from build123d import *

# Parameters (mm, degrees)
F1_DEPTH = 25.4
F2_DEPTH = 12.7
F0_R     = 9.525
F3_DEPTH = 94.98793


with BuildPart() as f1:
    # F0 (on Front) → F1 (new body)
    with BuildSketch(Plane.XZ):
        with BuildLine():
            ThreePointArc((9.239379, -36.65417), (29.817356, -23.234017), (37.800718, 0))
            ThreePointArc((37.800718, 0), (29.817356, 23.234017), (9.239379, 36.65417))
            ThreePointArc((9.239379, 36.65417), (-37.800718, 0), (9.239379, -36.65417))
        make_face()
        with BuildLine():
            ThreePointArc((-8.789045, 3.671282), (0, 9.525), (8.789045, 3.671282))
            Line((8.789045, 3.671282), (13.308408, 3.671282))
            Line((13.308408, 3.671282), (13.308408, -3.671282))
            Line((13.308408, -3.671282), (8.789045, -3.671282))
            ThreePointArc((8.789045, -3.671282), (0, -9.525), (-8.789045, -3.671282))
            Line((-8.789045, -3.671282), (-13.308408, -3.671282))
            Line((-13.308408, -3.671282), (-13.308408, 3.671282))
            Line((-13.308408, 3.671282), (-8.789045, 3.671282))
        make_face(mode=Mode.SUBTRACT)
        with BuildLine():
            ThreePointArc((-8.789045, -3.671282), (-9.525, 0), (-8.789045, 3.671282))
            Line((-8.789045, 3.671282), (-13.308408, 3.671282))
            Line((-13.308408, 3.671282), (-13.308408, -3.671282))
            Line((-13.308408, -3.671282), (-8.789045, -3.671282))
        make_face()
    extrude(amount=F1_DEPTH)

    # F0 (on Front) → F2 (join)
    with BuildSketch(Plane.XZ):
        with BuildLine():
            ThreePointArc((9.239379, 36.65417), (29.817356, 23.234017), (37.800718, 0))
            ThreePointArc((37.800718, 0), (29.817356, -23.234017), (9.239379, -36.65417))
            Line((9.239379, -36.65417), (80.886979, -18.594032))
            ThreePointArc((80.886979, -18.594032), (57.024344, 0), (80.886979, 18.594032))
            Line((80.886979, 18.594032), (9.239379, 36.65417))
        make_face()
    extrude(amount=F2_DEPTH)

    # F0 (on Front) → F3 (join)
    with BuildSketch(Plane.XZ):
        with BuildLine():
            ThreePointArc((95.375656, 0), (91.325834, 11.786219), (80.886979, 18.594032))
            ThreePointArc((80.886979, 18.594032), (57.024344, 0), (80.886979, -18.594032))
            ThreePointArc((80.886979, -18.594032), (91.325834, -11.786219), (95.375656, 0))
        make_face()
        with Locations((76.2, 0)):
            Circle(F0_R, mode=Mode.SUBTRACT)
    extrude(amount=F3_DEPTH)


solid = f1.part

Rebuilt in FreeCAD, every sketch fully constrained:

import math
import FreeCAD as App
import Part
import Sketcher
Q = App.Units.Quantity

doc = App.newDocument("Part")
body = doc.addObject("PartDesign::Body", "Body")

# Sketch on XZ plane
sketch1 = body.newObject("Sketcher::SketchObject", "Sketch")
sketch1.AttachmentSupport = (doc.getObject("XZ_Plane"), [""])
sketch1.MapMode = "FlatFace"
sketch1.addGeometry(Part.ArcOfCircle(Part.Circle(App.Vector(0, 0, 0), App.Vector(0, 0, 1), 37.8), math.radians(-76), math.radians(0)), False)
sketch1.addGeometry(Part.ArcOfCircle(Part.Circle(App.Vector(0, 0, 0), App.Vector(0, 0, 1), 37.8), math.radians(0), math.radians(76)), False)
sketch1.addGeometry(Part.ArcOfCircle(Part.Circle(App.Vector(0, 0, 0), App.Vector(0, 0, 1), 37.8), math.radians(76), math.radians(284)), False)
sketch1.addGeometry(Part.ArcOfCircle(Part.Circle(App.Vector(0, 0, 0), App.Vector(0, 0, 1), 9.5), math.radians(-157), math.radians(-23)), False)
sketch1.addGeometry(Part.ArcOfCircle(Part.Circle(App.Vector(0, 0, 0), App.Vector(0, 0, 1), 9.5), math.radians(157), math.radians(203)), False)
sketch1.addGeometry(Part.ArcOfCircle(Part.Circle(App.Vector(0, 0, 0), App.Vector(0, 0, 1), 9.5), math.radians(23), math.radians(157)), False)
sketch1.addGeometry(Part.LineSegment(App.Vector(8.8, 3.7, 0), App.Vector(13.3, 3.7, 0)), False)
sketch1.addGeometry(Part.LineSegment(App.Vector(13.3, 3.7, 0), App.Vector(13.3, -3.7, 0)), False)
sketch1.addGeometry(Part.LineSegment(App.Vector(13.3, -3.7, 0), App.Vector(8.8, -3.7, 0)), False)
sketch1.addConstraint(Sketcher.Constraint("Tangent", 0, 2, 1, 1))
sketch1.addConstraint(Sketcher.Constraint("Tangent", 1, 2, 2, 1))
sketch1.addConstraint(Sketcher.Constraint("Tangent", 2, 2, 0, 1))
sketch1.addConstraint(Sketcher.Constraint("Tangent", 3, 1, 4, 2))
sketch1.addConstraint(Sketcher.Constraint("Tangent", 4, 1, 5, 2))
sketch1.addConstraint(Sketcher.Constraint("Coincident", 5, 1, 6, 1))
sketch1.addConstraint(Sketcher.Constraint("Coincident", 6, 2, 7, 1))
sketch1.addConstraint(Sketcher.Constraint("Coincident", 7, 2, 8, 1))
sketch1.addConstraint(Sketcher.Constraint("Coincident", 8, 2, 3, 2))
sketch1.addConstraint(Sketcher.Constraint("Horizontal", 6))
sketch1.addConstraint(Sketcher.Constraint("Vertical", 7))
sketch1.addConstraint(Sketcher.Constraint("Horizontal", 8))
sketch1.addConstraint(Sketcher.Constraint("Coincident", 0, 3, -1, 1))
sketch1.addConstraint(Sketcher.Constraint("Coincident", 3, 3, -1, 1))
sketch1.addConstraint(Sketcher.Constraint("Coincident", 5, 3, -1, 1))
sketch1.addConstraint(Sketcher.Constraint("PointOnObject", 0, 2, -1))
sketch1.addConstraint(Sketcher.Constraint("Horizontal", 4, 1, 5, 1))
sketch1.addConstraint(Sketcher.Constraint("Horizontal", 3, 1, 7, 2))
sketch1.addConstraint(Sketcher.Constraint("Vertical", 1, 2, 2, 2))
sketch1.addConstraint(Sketcher.Constraint("Vertical", 3, 1, 4, 1))
sketch1.addConstraint(Sketcher.Constraint("Radius", 3, Q("0.375 in")))
sketch1.addConstraint(Sketcher.Constraint("Radius", 0, Q("37.800719 mm")))
sketch1.addConstraint(Sketcher.Constraint("DistanceX", 6, 1, 6, 2, Q("4.519363 mm")))
sketch1.addConstraint(Sketcher.Constraint("DistanceY", 7, 2, 7, 1, Q("7.342564 mm")))
sketch1.addConstraint(Sketcher.Constraint("DistanceX", -1, 1, 1, 2, Q("9.239379 mm")))
pad1 = body.newObject("PartDesign::Pad", "Pad")
pad1.Profile = sketch1
pad1.Length = Q("1 in")

# Sketch on XZ plane
sketch2 = body.newObject("Sketcher::SketchObject", "Sketch001")
sketch2.AttachmentSupport = (doc.getObject("XZ_Plane"), [""])
sketch2.MapMode = "FlatFace"
sketch2.addGeometry(Part.ArcOfCircle(Part.Circle(App.Vector(0, 0, 0), App.Vector(0, 0, 1), 38), math.radians(0), math.radians(76)), False)
sketch2.addGeometry(Part.ArcOfCircle(Part.Circle(App.Vector(0, 0, 0), App.Vector(0, 0, 1), 38), math.radians(-76), math.radians(0)), False)
sketch2.addGeometry(Part.LineSegment(App.Vector(9, -37, 0), App.Vector(81, -19, 0)), False)
sketch2.addGeometry(Part.ArcOfCircle(Part.Circle(App.Vector(76, 0, 0), App.Vector(0, 0, 1), 19), math.radians(76), math.radians(284)), False)
sketch2.addGeometry(Part.LineSegment(App.Vector(81, 19, 0), App.Vector(9, 37, 0)), False)
sketch2.addConstraint(Sketcher.Constraint("Tangent", 0, 1, 1, 2))
sketch2.addConstraint(Sketcher.Constraint("Tangent", 1, 1, 2, 1))
sketch2.addConstraint(Sketcher.Constraint("Tangent", 2, 2, 3, 2))
sketch2.addConstraint(Sketcher.Constraint("Tangent", 3, 1, 4, 1))
sketch2.addConstraint(Sketcher.Constraint("Tangent", 4, 2, 0, 2))
sketch2.addConstraint(Sketcher.Constraint("Coincident", 0, 3, -1, 1))
sketch2.addConstraint(Sketcher.Constraint("Equal", 0, 1))
sketch2.addConstraint(Sketcher.Constraint("PointOnObject", 3, 3, -1))
sketch2.addConstraint(Sketcher.Constraint("PointOnObject", 0, 1, -1))
sketch2.addConstraint(Sketcher.Constraint("DistanceX", -1, 1, 3, 3, Q("3 in")))
sketch2.addConstraint(Sketcher.Constraint("Radius", 0, Q("37.800719 mm")))
sketch2.addConstraint(Sketcher.Constraint("Radius", 3, Q("19.175656 mm")))
pad2 = body.newObject("PartDesign::Pad", "Pad001")
pad2.Profile = sketch2
pad2.Length = Q("0.5 in")

# Sketch on XZ plane
sketch3 = body.newObject("Sketcher::SketchObject", "Sketch002")
sketch3.AttachmentSupport = (doc.getObject("XZ_Plane"), [""])
sketch3.MapMode = "FlatFace"
sketch3.addGeometry(Part.ArcOfCircle(Part.Circle(App.Vector(76, 0, 0), App.Vector(0, 0, 1), 19), math.radians(0), math.radians(76)), False)
sketch3.addGeometry(Part.ArcOfCircle(Part.Circle(App.Vector(76, 0, 0), App.Vector(0, 0, 1), 19), math.radians(76), math.radians(284)), False)
sketch3.addGeometry(Part.ArcOfCircle(Part.Circle(App.Vector(76, 0, 0), App.Vector(0, 0, 1), 19), math.radians(-76), math.radians(0)), False)
sketch3.addGeometry(Part.Circle(App.Vector(76, 0, 0), App.Vector(0, 0, 1), 10), False)
sketch3.addConstraint(Sketcher.Constraint("Tangent", 0, 2, 1, 1))
sketch3.addConstraint(Sketcher.Constraint("Tangent", 1, 2, 2, 1))
sketch3.addConstraint(Sketcher.Constraint("Tangent", 2, 2, 0, 1))
sketch3.addConstraint(Sketcher.Constraint("Coincident", 3, 3, 0, 3))
sketch3.addConstraint(Sketcher.Constraint("Symmetric", 0, 2, 1, 2, -1))
sketch3.addConstraint(Sketcher.Constraint("PointOnObject", 2, 2, -1))
sketch3.addConstraint(Sketcher.Constraint("Diameter", 3, Q("0.75 in")))
sketch3.addConstraint(Sketcher.Constraint("DistanceX", -1, 1, 0, 3, Q("3.0000001 in")))
sketch3.addConstraint(Sketcher.Constraint("Radius", 0, Q("19.175654 mm")))
sketch3.addConstraint(Sketcher.Constraint("DistanceX", -1, 1, 0, 2, Q("80.886979 mm")))
pad3 = body.newObject("PartDesign::Pad", "Pad002")
pad3.Profile = sketch3
pad3.Length = 94.98793

doc.recompute()
